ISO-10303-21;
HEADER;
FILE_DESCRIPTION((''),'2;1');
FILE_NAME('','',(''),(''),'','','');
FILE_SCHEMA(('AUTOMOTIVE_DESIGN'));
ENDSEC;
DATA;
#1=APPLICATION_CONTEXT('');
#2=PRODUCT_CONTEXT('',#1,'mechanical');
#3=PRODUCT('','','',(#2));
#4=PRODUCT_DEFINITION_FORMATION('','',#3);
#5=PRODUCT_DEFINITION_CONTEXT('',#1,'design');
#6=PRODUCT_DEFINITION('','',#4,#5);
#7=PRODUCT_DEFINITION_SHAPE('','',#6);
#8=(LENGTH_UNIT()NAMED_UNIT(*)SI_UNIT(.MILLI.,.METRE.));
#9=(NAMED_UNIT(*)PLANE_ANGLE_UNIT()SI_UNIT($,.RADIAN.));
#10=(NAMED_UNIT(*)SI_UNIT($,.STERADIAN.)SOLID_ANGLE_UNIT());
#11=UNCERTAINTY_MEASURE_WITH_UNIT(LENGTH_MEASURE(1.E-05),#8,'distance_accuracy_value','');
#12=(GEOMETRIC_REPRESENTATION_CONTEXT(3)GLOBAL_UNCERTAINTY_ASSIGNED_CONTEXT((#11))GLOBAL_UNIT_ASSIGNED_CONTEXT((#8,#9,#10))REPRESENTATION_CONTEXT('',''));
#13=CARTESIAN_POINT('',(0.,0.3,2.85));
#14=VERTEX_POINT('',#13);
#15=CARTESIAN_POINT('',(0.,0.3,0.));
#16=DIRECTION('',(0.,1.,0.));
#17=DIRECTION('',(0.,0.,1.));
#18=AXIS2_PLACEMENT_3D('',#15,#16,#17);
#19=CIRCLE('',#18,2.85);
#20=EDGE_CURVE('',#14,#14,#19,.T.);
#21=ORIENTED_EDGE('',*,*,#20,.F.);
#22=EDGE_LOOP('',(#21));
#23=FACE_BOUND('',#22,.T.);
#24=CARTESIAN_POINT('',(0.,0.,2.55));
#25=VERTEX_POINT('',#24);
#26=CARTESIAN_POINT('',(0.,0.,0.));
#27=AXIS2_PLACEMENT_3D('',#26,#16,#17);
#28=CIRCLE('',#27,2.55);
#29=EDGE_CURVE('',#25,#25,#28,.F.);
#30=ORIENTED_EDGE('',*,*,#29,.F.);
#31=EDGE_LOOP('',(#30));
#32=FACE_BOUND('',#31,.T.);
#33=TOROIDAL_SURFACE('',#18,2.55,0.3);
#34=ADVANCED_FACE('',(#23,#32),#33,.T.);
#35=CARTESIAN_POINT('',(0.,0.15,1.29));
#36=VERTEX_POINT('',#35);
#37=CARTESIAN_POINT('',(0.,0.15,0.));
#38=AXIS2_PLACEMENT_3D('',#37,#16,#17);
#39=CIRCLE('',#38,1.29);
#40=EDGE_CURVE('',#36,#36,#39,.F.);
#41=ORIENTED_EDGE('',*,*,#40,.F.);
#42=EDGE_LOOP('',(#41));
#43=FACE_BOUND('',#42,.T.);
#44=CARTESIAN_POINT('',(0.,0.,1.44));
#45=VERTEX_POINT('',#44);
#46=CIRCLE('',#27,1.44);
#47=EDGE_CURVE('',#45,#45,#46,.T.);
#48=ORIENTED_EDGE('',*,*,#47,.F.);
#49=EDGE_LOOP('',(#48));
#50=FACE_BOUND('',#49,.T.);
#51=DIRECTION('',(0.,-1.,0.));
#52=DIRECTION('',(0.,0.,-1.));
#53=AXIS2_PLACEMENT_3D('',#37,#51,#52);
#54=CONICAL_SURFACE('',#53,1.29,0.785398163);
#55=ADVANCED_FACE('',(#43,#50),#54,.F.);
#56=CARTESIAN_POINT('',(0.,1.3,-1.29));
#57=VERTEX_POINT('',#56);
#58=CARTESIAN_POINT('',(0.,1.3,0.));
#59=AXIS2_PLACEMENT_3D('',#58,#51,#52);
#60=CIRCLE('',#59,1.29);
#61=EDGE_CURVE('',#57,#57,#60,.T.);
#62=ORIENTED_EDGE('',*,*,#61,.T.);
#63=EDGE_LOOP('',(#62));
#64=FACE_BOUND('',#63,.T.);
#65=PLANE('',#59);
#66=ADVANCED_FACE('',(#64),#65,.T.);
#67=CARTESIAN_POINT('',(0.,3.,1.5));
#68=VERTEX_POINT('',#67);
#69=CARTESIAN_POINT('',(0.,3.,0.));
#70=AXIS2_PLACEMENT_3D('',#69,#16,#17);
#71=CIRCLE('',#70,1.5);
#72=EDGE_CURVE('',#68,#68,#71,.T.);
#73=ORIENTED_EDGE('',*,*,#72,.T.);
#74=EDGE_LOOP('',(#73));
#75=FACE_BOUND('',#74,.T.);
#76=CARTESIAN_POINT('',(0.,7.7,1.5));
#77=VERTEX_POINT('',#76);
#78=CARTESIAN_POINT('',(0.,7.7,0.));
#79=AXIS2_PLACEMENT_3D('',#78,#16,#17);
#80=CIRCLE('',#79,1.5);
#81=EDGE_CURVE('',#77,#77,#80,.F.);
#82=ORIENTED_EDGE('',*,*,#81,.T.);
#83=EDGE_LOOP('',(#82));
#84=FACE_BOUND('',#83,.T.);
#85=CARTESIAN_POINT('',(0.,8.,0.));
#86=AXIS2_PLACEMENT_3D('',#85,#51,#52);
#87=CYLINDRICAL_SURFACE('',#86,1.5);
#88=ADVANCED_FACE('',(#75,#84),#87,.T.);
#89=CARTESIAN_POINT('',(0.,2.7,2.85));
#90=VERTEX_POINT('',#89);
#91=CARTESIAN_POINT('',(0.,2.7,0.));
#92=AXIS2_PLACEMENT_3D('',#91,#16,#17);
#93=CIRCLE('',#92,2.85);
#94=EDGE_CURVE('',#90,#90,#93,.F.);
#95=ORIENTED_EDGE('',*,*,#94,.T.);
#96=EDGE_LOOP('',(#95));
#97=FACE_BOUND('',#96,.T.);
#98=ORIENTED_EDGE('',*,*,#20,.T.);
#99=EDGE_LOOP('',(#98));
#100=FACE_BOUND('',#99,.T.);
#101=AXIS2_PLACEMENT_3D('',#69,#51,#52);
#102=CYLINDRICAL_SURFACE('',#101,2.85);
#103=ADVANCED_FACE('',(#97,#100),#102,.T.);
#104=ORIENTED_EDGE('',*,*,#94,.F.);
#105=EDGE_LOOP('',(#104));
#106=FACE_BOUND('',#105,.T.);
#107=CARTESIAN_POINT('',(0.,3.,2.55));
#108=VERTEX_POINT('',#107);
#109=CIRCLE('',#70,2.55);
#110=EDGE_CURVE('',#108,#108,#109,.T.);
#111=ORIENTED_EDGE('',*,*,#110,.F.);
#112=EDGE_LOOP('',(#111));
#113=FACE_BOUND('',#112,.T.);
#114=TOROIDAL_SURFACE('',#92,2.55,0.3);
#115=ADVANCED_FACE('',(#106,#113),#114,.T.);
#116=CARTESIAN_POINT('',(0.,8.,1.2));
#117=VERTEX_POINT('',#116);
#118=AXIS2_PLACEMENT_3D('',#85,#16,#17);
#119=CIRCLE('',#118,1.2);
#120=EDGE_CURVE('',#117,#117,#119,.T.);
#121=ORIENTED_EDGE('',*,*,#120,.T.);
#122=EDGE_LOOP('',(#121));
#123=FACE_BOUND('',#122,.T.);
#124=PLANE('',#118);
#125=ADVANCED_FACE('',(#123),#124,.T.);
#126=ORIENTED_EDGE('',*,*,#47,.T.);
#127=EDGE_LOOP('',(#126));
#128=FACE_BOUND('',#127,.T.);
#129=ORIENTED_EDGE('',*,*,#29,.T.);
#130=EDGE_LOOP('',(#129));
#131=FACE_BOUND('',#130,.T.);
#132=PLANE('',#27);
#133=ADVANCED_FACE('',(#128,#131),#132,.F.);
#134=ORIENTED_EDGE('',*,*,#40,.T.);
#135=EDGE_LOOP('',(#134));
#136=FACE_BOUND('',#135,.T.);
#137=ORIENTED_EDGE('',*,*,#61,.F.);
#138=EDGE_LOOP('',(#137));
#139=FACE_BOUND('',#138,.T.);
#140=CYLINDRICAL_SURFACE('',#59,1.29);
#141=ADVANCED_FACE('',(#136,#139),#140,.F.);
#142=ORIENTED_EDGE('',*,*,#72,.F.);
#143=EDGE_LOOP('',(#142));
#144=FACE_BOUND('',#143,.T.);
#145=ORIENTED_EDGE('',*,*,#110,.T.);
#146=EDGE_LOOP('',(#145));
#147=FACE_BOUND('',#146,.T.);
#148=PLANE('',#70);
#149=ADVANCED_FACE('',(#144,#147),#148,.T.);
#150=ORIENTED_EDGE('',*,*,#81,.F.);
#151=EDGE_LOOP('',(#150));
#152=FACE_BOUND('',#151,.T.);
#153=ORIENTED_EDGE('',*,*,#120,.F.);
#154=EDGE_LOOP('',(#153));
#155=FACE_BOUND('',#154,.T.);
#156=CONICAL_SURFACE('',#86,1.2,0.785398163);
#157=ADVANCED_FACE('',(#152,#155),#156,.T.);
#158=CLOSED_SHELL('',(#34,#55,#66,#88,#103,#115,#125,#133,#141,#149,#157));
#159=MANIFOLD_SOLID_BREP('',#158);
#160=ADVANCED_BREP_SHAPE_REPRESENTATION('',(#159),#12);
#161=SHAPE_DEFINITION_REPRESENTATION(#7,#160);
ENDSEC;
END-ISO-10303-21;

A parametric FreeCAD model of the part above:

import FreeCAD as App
import Part
import Sketcher

V = App.Vector
Q = App.Units.Quantity


def edges_at(feature, points):
    """Names of the edges that pass closest to the given points."""
    edges = feature.Shape.Edges
    near = lambda p: min(range(len(edges)), key=lambda i: edges[i].distToShape(Part.Vertex(*p))[0])
    return sorted({f"Edge{near(p) + 1}" for p in points})

doc = App.newDocument("Part")
body = doc.addObject("PartDesign::Body", "Body")

# Sketch on XZ plane
sketch1 = body.newObject("Sketcher::SketchObject", "Sketch")
sketch1.AttachmentSupport = (doc.getObject("XZ_Plane"), [""])
sketch1.MapMode = "FlatFace"
sketch1.addGeometry(Part.Circle(V(0, 0, 0), V(0, 0, 1), 2.85), False)
sketch1.addConstraint(Sketcher.Constraint("Coincident", 0, 3, -1, 1))
sketch1.addConstraint(Sketcher.Constraint("Diameter", 0, Q("5.7 mm")))
pad1 = body.newObject("PartDesign::Pad", "Pad")
pad1.Profile = sketch1
pad1.Length = 3
pad1.Reversed = True

# Sketch on XZ plane
sketch2 = body.newObject("Sketcher::SketchObject", "Sketch001")
sketch2.AttachmentSupport = (doc.getObject("XZ_Plane"), [""])
sketch2.MapMode = "FlatFace"
sketch2.AttachmentOffset = App.Placement(V(0, 0, -3), App.Rotation())
sketch2.addGeometry(Part.Circle(V(0, 0, 0), V(0, 0, 1), 1.5), False)
sketch2.addConstraint(Sketcher.Constraint("Coincident", 0, 3, -1, 1))
sketch2.addConstraint(Sketcher.Constraint("Diameter", 0, Q("3 mm")))
pad2 = body.newObject("PartDesign::Pad", "Pad001")
pad2.Profile = sketch2
pad2.Length = 5
pad2.Reversed = True

# Sketch on XZ plane
sketch3 = body.newObject("Sketcher::SketchObject", "Sketch002")
sketch3.AttachmentSupport = (doc.getObject("XZ_Plane"), [""])
sketch3.MapMode = "FlatFace"
sketch3.addGeometry(Part.Circle(V(0, 0, 0), V(0, 0, 1), 1.29), False)
sketch3.addConstraint(Sketcher.Constraint("Coincident", 0, 3, -1, 1))
sketch3.addConstraint(Sketcher.Constraint("Diameter", 0, Q("2.58 mm")))
pocket1 = body.newObject("PartDesign::Pocket", "Pocket")
pocket1.Profile = sketch3
pocket1.Length = 1.3
doc.recompute()

fillet = body.newObject("PartDesign::Fillet", "Fillet")
fillet.Base = (pocket1, edges_at(pocket1, [(0, 0, -2.85), (0, 3, -2.85)]))
fillet.Radius = 0.3
doc.recompute()

chamfer = body.newObject("PartDesign::Chamfer", "Chamfer")
chamfer.Base = (fillet, edges_at(fillet, [(0, 8, -1.5)]))
chamfer.Size = 0.3
doc.recompute()

chamfer2 = body.newObject("PartDesign::Chamfer", "Chamfer001")
chamfer2.Base = (chamfer, edges_at(chamfer, [(0, 0, 1.29)]))
chamfer2.Size = 0.15

doc.recompute()
